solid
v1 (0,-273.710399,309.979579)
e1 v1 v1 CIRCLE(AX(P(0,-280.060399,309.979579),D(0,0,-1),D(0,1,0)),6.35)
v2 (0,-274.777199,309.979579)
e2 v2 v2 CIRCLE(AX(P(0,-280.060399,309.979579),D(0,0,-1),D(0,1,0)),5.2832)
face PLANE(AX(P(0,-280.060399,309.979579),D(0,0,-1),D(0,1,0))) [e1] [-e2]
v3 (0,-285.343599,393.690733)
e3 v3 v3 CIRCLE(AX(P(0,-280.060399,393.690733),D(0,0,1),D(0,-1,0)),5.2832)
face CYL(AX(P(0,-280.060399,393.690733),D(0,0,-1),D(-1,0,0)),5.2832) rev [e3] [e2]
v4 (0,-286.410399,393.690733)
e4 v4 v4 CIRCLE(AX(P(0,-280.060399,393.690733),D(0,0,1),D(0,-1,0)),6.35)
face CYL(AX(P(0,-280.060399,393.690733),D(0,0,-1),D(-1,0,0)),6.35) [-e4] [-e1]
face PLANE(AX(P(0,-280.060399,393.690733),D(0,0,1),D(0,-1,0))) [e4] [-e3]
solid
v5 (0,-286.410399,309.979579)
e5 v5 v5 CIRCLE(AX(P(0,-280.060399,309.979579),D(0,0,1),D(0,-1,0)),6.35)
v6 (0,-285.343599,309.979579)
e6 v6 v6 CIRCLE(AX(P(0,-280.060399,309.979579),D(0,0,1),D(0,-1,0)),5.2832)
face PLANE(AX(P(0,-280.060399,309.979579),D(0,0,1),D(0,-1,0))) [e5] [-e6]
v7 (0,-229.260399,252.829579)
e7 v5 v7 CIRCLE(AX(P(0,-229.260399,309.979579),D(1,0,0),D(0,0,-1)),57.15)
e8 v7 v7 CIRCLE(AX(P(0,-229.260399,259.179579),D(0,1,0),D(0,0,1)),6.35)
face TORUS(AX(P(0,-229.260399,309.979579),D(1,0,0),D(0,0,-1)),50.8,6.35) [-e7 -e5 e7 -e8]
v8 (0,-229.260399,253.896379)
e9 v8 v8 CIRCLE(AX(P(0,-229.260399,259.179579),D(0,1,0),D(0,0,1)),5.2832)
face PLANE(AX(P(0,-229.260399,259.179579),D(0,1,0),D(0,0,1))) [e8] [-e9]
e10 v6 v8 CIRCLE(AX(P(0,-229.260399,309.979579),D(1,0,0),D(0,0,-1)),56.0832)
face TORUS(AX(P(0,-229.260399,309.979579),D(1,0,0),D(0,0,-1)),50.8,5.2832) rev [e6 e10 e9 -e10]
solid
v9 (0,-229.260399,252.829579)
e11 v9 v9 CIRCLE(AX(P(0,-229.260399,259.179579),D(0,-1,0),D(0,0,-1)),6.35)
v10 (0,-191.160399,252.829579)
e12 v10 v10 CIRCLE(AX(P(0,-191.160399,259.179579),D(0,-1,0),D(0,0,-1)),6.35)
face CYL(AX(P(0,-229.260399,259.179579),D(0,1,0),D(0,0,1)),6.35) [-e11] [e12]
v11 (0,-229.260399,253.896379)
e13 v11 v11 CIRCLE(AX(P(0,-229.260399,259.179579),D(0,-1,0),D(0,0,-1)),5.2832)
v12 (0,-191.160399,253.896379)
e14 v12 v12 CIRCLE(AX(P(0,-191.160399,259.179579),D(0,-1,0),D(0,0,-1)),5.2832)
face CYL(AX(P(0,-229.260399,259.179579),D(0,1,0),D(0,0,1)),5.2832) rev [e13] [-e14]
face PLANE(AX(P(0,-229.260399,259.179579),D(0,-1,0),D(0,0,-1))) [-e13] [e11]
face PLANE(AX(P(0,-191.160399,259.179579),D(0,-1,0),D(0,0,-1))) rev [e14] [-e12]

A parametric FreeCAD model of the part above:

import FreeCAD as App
import Part
import Sketcher
from FreeCAD import Vector
Q = App.Units.Quantity

doc = App.newDocument("Part")
body = doc.addObject("PartDesign::Body", "Body")

# Sketch on XZ plane
sketch1 = doc.addObject("Sketcher::SketchObject", "Sketch")
body.addObject(sketch1)
sketch1.AttachmentSupport = (doc.XZ_Plane, [""])
sketch1.MapMode = "FlatFace"
sketch1.AttachmentOffset = App.Placement(Vector(0, 0, 7.526 * 25.4), App.Rotation())
sketch1.addGeometry([
    Part.Circle(Vector(0, 259.179579, 0), Vector(0, 0, 1), 6.35),
    Part.Circle(Vector(0, 259.179579, 0), Vector(0, 0, 1), 5.2832),
], False)
sketch1.addConstraint([
    Sketcher.Constraint("Coincident", 1, 3, 0, 3),
    Sketcher.Constraint("PointOnObject", 0, 3, -2),
    Sketcher.Constraint("Diameter", 0, Q("0.5 in")),
    Sketcher.Constraint("Diameter", 1, Q("0.416 in")),
    Sketcher.Constraint("DistanceY", -1, 1, 0, 3, Q("259.179579 mm")),
])
pad1 = doc.addObject("PartDesign::Pad", "Pad")
body.addObject(pad1)
pad1.Profile = sketch1
pad1.Length = Q("1.5 in")
body2 = doc.addObject("PartDesign::Body", "Body001")

# Sketch on XZ plane
sketch2 = doc.addObject("Sketcher::SketchObject", "Sketch001")
body2.addObject(sketch2)
sketch2.AttachmentSupport = (doc.getObject("XZ_Plane001"), [""])
sketch2.MapMode = "FlatFace"
sketch2.AttachmentOffset = App.Placement(Vector(0, 0, 9.026 * 25.4), App.Rotation())
sketch2.addGeometry([
    Part.Circle(Vector(0, 259.179579, 0), Vector(0, 0, 1), 6.35),
    Part.Circle(Vector(0, 259.179579, 0), Vector(0, 0, 1), 5.2832),
], False)
sketch2.addGeometry(Part.LineSegment(Vector(0, 309.979579, 0), Vector(-10, 309.979579, 0)), True)  # axis
sketch2.addConstraint([
    Sketcher.Constraint("Horizontal", 2),
    Sketcher.Constraint("Coincident", 1, 3, 0, 3),
    Sketcher.Constraint("PointOnObject", 0, 3, -2),
    Sketcher.Constraint("PointOnObject", 2, 1, -2),
    Sketcher.Constraint("Diameter", 0, Q("0.5 in")),
    Sketcher.Constraint("Diameter", 1, Q("0.416 in")),
    Sketcher.Constraint("DistanceY", 0, 3, 2, 1, Q("2 in")),
    Sketcher.Constraint("DistanceX", 2, 2, 2, 1, Q("10 mm")),
    Sketcher.Constraint("DistanceY", -1, 1, 0, 3, Q("259.179579 mm")),
])
revolution = doc.addObject("PartDesign::Revolution", "Revolution")
body2.addObject(revolution)
revolution.Profile = sketch2
revolution.ReferenceAxis = (sketch2, ["Axis0"])
revolution.Angle = 90
body3 = doc.addObject("PartDesign::Body", "Body002")

# Sketch on XY plane
sketch3 = doc.addObject("Sketcher::SketchObject", "Sketch002")
body3.addObject(sketch3)
sketch3.AttachmentSupport = (doc.getObject("XY_Plane002"), [""])
sketch3.MapMode = "FlatFace"
sketch3.AttachmentOffset = App.Placement(Vector(0, 0, 309.979579), App.Rotation())
sketch3.addGeometry([
    Part.Circle(Vector(0, -280.060399, 0), Vector(0, 0, 1), 6.35),
    Part.Circle(Vector(0, -280.060399, 0), Vector(0, 0, 1), 5.2832),
], False)
sketch3.addConstraint([
    Sketcher.Constraint("Coincident", 1, 3, 0, 3),
    Sketcher.Constraint("PointOnObject", 0, 3, -2),
    Sketcher.Constraint("Diameter", 0, Q("0.5 in")),
    Sketcher.Constraint("Diameter", 1, Q("0.416 in")),
    Sketcher.Constraint("DistanceY", 0, 3, -1, 1, Q("11.026 in")),
])
pad2 = doc.addObject("PartDesign::Pad", "Pad001")
body3.addObject(pad2)
pad2.Profile = sketch3
pad2.Length = 83.711153

doc.recompute()
